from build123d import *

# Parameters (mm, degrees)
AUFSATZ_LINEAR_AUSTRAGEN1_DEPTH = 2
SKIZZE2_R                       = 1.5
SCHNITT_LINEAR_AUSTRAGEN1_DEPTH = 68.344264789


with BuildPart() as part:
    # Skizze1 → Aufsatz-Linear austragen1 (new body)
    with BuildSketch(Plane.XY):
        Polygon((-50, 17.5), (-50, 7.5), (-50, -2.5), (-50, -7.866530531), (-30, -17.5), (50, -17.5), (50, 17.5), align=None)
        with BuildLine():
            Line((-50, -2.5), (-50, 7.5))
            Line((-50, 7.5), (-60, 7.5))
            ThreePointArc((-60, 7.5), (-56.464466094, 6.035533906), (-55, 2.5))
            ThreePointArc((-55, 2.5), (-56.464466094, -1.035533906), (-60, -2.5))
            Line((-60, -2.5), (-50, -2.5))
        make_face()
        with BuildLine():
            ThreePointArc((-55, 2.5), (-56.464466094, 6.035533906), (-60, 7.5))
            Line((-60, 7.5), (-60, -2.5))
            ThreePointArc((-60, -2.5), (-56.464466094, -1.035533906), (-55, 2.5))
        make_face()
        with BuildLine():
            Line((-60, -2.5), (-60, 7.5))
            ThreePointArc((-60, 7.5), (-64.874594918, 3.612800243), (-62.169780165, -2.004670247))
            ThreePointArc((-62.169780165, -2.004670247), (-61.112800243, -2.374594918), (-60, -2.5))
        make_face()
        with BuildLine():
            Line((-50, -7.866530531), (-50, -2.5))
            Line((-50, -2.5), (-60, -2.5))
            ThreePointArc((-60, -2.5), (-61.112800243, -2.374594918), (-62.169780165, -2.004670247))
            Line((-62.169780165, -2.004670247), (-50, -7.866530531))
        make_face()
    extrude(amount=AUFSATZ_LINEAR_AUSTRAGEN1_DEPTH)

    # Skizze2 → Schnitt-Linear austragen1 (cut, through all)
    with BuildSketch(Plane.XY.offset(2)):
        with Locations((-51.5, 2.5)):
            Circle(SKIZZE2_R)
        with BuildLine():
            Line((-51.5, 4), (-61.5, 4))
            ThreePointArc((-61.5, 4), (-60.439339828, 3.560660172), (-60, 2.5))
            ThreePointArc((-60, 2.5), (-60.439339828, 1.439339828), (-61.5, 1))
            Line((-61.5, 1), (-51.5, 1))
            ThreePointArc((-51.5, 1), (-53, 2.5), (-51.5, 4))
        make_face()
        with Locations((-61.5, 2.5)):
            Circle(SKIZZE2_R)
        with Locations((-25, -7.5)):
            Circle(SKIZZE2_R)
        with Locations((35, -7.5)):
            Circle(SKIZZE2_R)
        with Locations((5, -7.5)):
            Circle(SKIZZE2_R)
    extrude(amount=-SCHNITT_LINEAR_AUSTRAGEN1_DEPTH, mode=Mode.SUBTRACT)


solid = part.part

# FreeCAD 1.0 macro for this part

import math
import FreeCAD as App
import Part
import Sketcher

doc = App.newDocument("Part")
body = doc.addObject("PartDesign::Body", "Body")

# Sketch on XY plane
sketch1 = body.newObject("Sketcher::SketchObject", "Sketch")
sketch1.AttachmentSupport = (doc.getObject("XY_Plane"), [""])
sketch1.MapMode = "FlatFace"
sketch1.addGeometry([
    Part.LineSegment(App.Vector(50, -17.5, 0), App.Vector(50, 17.5, 0)),  # 0
    Part.LineSegment(App.Vector(50, 17.5, 0), App.Vector(-50, 17.5, 0)),  # 1
    Part.LineSegment(App.Vector(-50, 17.5, 0), App.Vector(-50, 7.5, 0)),  # 2
    Part.LineSegment(App.Vector(-50, 7.5, 0), App.Vector(-60, 7.5, 0)),  # 3
    Part.ArcOfCircle(Part.Circle(App.Vector(-60, 2.5, 0), App.Vector(0, 0, 1), 5), math.radians(90), math.radians(244.281117)),  # 4
    Part.LineSegment(App.Vector(-62.16978, -2.00467, 0), App.Vector(-50, -7.866531, 0)),  # 5
    Part.LineSegment(App.Vector(-50, -7.866531, 0), App.Vector(-30, -17.5, 0)),  # 6
    Part.LineSegment(App.Vector(-30, -17.5, 0), App.Vector(50, -17.5, 0)),  # 7
], False)
sketch1.addConstraint([
    Sketcher.Constraint("Coincident", 0, 2, 1, 1),
    Sketcher.Constraint("Coincident", 1, 2, 2, 1),
    Sketcher.Constraint("Coincident", 2, 2, 3, 1),
    Sketcher.Constraint("Tangent", 3, 2, 4, 1),
    Sketcher.Constraint("Tangent", 4, 2, 5, 1),
    Sketcher.Constraint("Coincident", 5, 2, 6, 1),
    Sketcher.Constraint("Coincident", 6, 2, 7, 1),
    Sketcher.Constraint("Coincident", 7, 2, 0, 1),
    Sketcher.Constraint("Vertical", 0),
    Sketcher.Constraint("Horizontal", 1),
    Sketcher.Constraint("Vertical", 2),
    Sketcher.Constraint("Horizontal", 3),
    Sketcher.Constraint("Horizontal", 7),
    Sketcher.Constraint("Symmetric", 1, 2, 7, 2, -1, 1),
    Sketcher.Constraint("Parallel", 5, 6),
    Sketcher.Constraint("Vertical", 2, 2, 5, 2),
    Sketcher.Constraint("Equal", 3, 2),
    Sketcher.Constraint("Radius", 4, 5.0),
    Sketcher.Constraint("DistanceX", 1, 2, 1, 1, 100.0),
    Sketcher.Constraint("DistanceX", 3, 2, 3, 1, 10.0),
    Sketcher.Constraint("DistanceX", 7, 1, 7, 2, 80.0),
    Sketcher.Constraint("DistanceY", 0, 1, 0, 2, 35.0),
])
pad1 = body.newObject("PartDesign::Pad", "Pad")
pad1.Profile = sketch1
pad1.Length = 2

# Sketch on XY plane
sketch2 = body.newObject("Sketcher::SketchObject", "Sketch001")
sketch2.AttachmentSupport = (doc.getObject("XY_Plane"), [""])
sketch2.MapMode = "FlatFace"
sketch2.AttachmentOffset = App.Placement(App.Vector(0, 0, 2), App.Rotation())
sketch2.addGeometry([
    Part.LineSegment(App.Vector(-51.5, 4, 0), App.Vector(-61.5, 4, 0)),  # 0
    Part.ArcOfCircle(Part.Circle(App.Vector(-61.5, 2.5, 0), App.Vector(0, 0, 1), 1.5), math.radians(90), math.radians(270)),  # 1
    Part.LineSegment(App.Vector(-61.5, 1, 0), App.Vector(-51.5, 1, 0)),  # 2
    Part.ArcOfCircle(Part.Circle(App.Vector(-51.5, 2.5, 0), App.Vector(0, 0, 1), 1.5), math.radians(-90), math.radians(90)),  # 3
    Part.Circle(App.Vector(-25, -7.5, 0), App.Vector(0, 0, 1), 1.5),  # 4
    Part.Circle(App.Vector(35, -7.5, 0), App.Vector(0, 0, 1), 1.5),  # 5
    Part.Circle(App.Vector(5, -7.5, 0), App.Vector(0, 0, 1), 1.5),  # 6
], False)
sketch2.addConstraint([
    Sketcher.Constraint("Tangent", 0, 2, 1, 1),
    Sketcher.Constraint("Tangent", 1, 2, 2, 1),
    Sketcher.Constraint("Tangent", 2, 2, 3, 1),
    Sketcher.Constraint("Tangent", 3, 2, 0, 1),
    Sketcher.Constraint("Horizontal", 0),
    Sketcher.Constraint("Horizontal", 2),
    Sketcher.Constraint("Equal", 3, 4),
    Sketcher.Constraint("Equal", 4, 5),
    Sketcher.Constraint("Equal", 5, 6),
    Sketcher.Constraint("Horizontal", 4, 3, 5, 3),
    Sketcher.Constraint("Horizontal", 5, 3, 6, 3),
    Sketcher.Constraint("Diameter", 4, 3.0),
    Sketcher.Constraint("DistanceX", 0, 2, 0, 1, 10.0),
    Sketcher.Constraint("DistanceX", 4, 3, -1, 1, 25.0),
    Sketcher.Constraint("DistanceX", -1, 1, 5, 3, 35.0),
    Sketcher.Constraint("DistanceX", -1, 1, 6, 3, 5.0),
    Sketcher.Constraint("DistanceY", -1, 1, 0, 2, 4.0),
    Sketcher.Constraint("DistanceY", 4, 3, 3, 3, 10.0),
    Sketcher.Constraint("DistanceX", 1, 3, -1, 1, 61.5),
])
pocket1 = body.newObject("PartDesign::Pocket", "Pocket")
pocket1.Profile = sketch2
pocket1.Type = "ThroughAll"

doc.recompute()
